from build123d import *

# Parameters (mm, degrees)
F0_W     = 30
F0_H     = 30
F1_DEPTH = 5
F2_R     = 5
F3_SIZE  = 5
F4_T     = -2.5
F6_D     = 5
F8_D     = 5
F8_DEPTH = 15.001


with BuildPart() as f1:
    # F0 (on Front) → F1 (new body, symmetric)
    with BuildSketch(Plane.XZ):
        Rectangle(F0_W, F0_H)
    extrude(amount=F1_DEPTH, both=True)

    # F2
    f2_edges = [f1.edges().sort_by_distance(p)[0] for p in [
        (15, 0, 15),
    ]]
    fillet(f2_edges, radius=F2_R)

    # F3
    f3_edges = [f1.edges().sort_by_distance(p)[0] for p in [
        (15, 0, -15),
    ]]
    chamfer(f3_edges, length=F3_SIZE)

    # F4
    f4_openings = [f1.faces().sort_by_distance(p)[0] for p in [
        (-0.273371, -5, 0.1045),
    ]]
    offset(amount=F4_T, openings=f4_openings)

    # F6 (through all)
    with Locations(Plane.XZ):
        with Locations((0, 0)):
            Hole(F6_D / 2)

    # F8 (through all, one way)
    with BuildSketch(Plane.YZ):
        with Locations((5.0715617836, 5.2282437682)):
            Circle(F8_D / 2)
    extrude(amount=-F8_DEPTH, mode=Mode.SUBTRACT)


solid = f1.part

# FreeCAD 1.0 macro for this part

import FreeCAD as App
import Part
import Sketcher

V = App.Vector


def edges_at(feature, points):
    """Names of the edges that pass closest to the given points."""
    edges = feature.Shape.Edges
    near = lambda p: min(range(len(edges)), key=lambda i: edges[i].distToShape(Part.Vertex(*p))[0])
    return sorted({f"Edge{near(p) + 1}" for p in points})


def faces_at(feature, points):
    """Names of the faces that lie closest to the given points."""
    faces = feature.Shape.Faces
    near = lambda p: min(range(len(faces)), key=lambda i: faces[i].distToShape(Part.Vertex(*p))[0])
    return sorted({f"Face{near(p) + 1}" for p in points})

doc = App.newDocument("Part")
params = doc.addObject("Spreadsheet::Sheet", "Params")
for row, (alias, value) in enumerate([
    ("sketch1_width", "30 mm"),
    ("pad1_length", "10 mm"),
    ("fillet_radius", "5 mm"),
    ("chamfer_size", "5 mm"),
    ("thickness_wall", "2.5 mm"),
    ("sketch2_diameter", "5 mm"),
    ("hole_diameter", "5 mm"),
    ("sketch3_diameter", "5 mm"),
], start=1):
    params.set(f"A{row}", alias)
    params.set(f"B{row}", "=" + value)
    params.setAlias(f"B{row}", alias)

body = doc.addObject("PartDesign::Body", "Body")

# Sketch on XZ plane
sketch1 = body.newObject("Sketcher::SketchObject", "Sketch")
sketch1.AttachmentSupport = (doc.getObject("XZ_Plane"), [""])
sketch1.MapMode = "FlatFace"
sketch1.addGeometry(Part.LineSegment(V(-15, 15, 0), V(-15, -15, 0)), False)
sketch1.addGeometry(Part.LineSegment(V(-15, -15, 0), V(15, -15, 0)), False)
sketch1.addGeometry(Part.LineSegment(V(15, -15, 0), V(15, 15, 0)), False)
sketch1.addGeometry(Part.LineSegment(V(15, 15, 0), V(-15, 15, 0)), False)
sketch1.addConstraint(Sketcher.Constraint("Coincident", 0, 2, 1, 1))
sketch1.addConstraint(Sketcher.Constraint("Coincident", 1, 2, 2, 1))
sketch1.addConstraint(Sketcher.Constraint("Coincident", 2, 2, 3, 1))
sketch1.addConstraint(Sketcher.Constraint("Coincident", 3, 2, 0, 1))
sketch1.addConstraint(Sketcher.Constraint("Vertical", 0))
sketch1.addConstraint(Sketcher.Constraint("Horizontal", 1))
sketch1.addConstraint(Sketcher.Constraint("Vertical", 2))
sketch1.addConstraint(Sketcher.Constraint("Horizontal", 3))
sketch1.addConstraint(Sketcher.Constraint("Symmetric", 0, 2, 2, 2, -1, 1))
sketch1.addConstraint(Sketcher.Constraint("Equal", 3, 0))
sketch1.addConstraint(Sketcher.Constraint("DistanceX", 1, 1, 1, 2, 30.0))
sketch1.setExpression("Constraints[10]", "Params.sketch1_width")
pad1 = body.newObject("PartDesign::Pad", "Pad")
pad1.Profile = sketch1
pad1.setExpression("Length", "Params.pad1_length")
pad1.Midplane = True
doc.recompute()

fillet = body.newObject("PartDesign::Fillet", "Fillet")
fillet.Base = (pad1, edges_at(pad1, [(15, 0, 15)]))
fillet.setExpression("Radius", "Params.fillet_radius")
doc.recompute()

chamfer = body.newObject("PartDesign::Chamfer", "Chamfer")
chamfer.Base = (fillet, edges_at(fillet, [(15, 0, -15)]))
chamfer.setExpression("Size", "Params.chamfer_size")
doc.recompute()

thickness = body.newObject("PartDesign::Thickness", "Thickness")
thickness.Base = (chamfer, faces_at(chamfer, [(0, -5, 0)]))
thickness.setExpression("Value", "Params.thickness_wall")
thickness.Reversed = True
thickness.Join = "Arc"

# Sketch on XZ plane
sketch2 = body.newObject("Sketcher::SketchObject", "Sketch001")
sketch2.AttachmentSupport = (doc.getObject("XZ_Plane"), [""])
sketch2.MapMode = "FlatFace"
sketch2.addGeometry(Part.Circle(V(0, 0, 0), V(0, 0, 1), 2.5), False)
sketch2.addConstraint(Sketcher.Constraint("Coincident", 0, 3, -1, 1))
sketch2.addConstraint(Sketcher.Constraint("Diameter", 0, 5.0))
sketch2.setExpression("Constraints[1]", "Params.sketch2_diameter")
doc.recompute()
hole = body.newObject("PartDesign::Hole", "Hole")
hole.Profile = sketch2
hole.ThreadType = "None"
hole.setExpression("Diameter", "Params.hole_diameter")
hole.DepthType = "ThroughAll"

# Sketch on YZ plane
sketch3 = body.newObject("Sketcher::SketchObject", "Sketch002")
sketch3.AttachmentSupport = (doc.getObject("YZ_Plane"), [""])
sketch3.MapMode = "FlatFace"
sketch3.addGeometry(Part.Circle(V(5.071562, 5.228244, 0), V(0, 0, 1), 2.5), False)
sketch3.addConstraint(Sketcher.Constraint("Diameter", 0, 5.0))
sketch3.addConstraint(Sketcher.Constraint("DistanceX", -1, 1, 0, 3, 5.071562))
sketch3.addConstraint(Sketcher.Constraint("DistanceY", -1, 1, 0, 3, 5.228244))
sketch3.setExpression("Constraints[0]", "Params.sketch3_diameter")
pocket1 = body.newObject("PartDesign::Pocket", "Pocket")
pocket1.Profile = sketch3
pocket1.Type = "ThroughAll"

doc.recompute()
